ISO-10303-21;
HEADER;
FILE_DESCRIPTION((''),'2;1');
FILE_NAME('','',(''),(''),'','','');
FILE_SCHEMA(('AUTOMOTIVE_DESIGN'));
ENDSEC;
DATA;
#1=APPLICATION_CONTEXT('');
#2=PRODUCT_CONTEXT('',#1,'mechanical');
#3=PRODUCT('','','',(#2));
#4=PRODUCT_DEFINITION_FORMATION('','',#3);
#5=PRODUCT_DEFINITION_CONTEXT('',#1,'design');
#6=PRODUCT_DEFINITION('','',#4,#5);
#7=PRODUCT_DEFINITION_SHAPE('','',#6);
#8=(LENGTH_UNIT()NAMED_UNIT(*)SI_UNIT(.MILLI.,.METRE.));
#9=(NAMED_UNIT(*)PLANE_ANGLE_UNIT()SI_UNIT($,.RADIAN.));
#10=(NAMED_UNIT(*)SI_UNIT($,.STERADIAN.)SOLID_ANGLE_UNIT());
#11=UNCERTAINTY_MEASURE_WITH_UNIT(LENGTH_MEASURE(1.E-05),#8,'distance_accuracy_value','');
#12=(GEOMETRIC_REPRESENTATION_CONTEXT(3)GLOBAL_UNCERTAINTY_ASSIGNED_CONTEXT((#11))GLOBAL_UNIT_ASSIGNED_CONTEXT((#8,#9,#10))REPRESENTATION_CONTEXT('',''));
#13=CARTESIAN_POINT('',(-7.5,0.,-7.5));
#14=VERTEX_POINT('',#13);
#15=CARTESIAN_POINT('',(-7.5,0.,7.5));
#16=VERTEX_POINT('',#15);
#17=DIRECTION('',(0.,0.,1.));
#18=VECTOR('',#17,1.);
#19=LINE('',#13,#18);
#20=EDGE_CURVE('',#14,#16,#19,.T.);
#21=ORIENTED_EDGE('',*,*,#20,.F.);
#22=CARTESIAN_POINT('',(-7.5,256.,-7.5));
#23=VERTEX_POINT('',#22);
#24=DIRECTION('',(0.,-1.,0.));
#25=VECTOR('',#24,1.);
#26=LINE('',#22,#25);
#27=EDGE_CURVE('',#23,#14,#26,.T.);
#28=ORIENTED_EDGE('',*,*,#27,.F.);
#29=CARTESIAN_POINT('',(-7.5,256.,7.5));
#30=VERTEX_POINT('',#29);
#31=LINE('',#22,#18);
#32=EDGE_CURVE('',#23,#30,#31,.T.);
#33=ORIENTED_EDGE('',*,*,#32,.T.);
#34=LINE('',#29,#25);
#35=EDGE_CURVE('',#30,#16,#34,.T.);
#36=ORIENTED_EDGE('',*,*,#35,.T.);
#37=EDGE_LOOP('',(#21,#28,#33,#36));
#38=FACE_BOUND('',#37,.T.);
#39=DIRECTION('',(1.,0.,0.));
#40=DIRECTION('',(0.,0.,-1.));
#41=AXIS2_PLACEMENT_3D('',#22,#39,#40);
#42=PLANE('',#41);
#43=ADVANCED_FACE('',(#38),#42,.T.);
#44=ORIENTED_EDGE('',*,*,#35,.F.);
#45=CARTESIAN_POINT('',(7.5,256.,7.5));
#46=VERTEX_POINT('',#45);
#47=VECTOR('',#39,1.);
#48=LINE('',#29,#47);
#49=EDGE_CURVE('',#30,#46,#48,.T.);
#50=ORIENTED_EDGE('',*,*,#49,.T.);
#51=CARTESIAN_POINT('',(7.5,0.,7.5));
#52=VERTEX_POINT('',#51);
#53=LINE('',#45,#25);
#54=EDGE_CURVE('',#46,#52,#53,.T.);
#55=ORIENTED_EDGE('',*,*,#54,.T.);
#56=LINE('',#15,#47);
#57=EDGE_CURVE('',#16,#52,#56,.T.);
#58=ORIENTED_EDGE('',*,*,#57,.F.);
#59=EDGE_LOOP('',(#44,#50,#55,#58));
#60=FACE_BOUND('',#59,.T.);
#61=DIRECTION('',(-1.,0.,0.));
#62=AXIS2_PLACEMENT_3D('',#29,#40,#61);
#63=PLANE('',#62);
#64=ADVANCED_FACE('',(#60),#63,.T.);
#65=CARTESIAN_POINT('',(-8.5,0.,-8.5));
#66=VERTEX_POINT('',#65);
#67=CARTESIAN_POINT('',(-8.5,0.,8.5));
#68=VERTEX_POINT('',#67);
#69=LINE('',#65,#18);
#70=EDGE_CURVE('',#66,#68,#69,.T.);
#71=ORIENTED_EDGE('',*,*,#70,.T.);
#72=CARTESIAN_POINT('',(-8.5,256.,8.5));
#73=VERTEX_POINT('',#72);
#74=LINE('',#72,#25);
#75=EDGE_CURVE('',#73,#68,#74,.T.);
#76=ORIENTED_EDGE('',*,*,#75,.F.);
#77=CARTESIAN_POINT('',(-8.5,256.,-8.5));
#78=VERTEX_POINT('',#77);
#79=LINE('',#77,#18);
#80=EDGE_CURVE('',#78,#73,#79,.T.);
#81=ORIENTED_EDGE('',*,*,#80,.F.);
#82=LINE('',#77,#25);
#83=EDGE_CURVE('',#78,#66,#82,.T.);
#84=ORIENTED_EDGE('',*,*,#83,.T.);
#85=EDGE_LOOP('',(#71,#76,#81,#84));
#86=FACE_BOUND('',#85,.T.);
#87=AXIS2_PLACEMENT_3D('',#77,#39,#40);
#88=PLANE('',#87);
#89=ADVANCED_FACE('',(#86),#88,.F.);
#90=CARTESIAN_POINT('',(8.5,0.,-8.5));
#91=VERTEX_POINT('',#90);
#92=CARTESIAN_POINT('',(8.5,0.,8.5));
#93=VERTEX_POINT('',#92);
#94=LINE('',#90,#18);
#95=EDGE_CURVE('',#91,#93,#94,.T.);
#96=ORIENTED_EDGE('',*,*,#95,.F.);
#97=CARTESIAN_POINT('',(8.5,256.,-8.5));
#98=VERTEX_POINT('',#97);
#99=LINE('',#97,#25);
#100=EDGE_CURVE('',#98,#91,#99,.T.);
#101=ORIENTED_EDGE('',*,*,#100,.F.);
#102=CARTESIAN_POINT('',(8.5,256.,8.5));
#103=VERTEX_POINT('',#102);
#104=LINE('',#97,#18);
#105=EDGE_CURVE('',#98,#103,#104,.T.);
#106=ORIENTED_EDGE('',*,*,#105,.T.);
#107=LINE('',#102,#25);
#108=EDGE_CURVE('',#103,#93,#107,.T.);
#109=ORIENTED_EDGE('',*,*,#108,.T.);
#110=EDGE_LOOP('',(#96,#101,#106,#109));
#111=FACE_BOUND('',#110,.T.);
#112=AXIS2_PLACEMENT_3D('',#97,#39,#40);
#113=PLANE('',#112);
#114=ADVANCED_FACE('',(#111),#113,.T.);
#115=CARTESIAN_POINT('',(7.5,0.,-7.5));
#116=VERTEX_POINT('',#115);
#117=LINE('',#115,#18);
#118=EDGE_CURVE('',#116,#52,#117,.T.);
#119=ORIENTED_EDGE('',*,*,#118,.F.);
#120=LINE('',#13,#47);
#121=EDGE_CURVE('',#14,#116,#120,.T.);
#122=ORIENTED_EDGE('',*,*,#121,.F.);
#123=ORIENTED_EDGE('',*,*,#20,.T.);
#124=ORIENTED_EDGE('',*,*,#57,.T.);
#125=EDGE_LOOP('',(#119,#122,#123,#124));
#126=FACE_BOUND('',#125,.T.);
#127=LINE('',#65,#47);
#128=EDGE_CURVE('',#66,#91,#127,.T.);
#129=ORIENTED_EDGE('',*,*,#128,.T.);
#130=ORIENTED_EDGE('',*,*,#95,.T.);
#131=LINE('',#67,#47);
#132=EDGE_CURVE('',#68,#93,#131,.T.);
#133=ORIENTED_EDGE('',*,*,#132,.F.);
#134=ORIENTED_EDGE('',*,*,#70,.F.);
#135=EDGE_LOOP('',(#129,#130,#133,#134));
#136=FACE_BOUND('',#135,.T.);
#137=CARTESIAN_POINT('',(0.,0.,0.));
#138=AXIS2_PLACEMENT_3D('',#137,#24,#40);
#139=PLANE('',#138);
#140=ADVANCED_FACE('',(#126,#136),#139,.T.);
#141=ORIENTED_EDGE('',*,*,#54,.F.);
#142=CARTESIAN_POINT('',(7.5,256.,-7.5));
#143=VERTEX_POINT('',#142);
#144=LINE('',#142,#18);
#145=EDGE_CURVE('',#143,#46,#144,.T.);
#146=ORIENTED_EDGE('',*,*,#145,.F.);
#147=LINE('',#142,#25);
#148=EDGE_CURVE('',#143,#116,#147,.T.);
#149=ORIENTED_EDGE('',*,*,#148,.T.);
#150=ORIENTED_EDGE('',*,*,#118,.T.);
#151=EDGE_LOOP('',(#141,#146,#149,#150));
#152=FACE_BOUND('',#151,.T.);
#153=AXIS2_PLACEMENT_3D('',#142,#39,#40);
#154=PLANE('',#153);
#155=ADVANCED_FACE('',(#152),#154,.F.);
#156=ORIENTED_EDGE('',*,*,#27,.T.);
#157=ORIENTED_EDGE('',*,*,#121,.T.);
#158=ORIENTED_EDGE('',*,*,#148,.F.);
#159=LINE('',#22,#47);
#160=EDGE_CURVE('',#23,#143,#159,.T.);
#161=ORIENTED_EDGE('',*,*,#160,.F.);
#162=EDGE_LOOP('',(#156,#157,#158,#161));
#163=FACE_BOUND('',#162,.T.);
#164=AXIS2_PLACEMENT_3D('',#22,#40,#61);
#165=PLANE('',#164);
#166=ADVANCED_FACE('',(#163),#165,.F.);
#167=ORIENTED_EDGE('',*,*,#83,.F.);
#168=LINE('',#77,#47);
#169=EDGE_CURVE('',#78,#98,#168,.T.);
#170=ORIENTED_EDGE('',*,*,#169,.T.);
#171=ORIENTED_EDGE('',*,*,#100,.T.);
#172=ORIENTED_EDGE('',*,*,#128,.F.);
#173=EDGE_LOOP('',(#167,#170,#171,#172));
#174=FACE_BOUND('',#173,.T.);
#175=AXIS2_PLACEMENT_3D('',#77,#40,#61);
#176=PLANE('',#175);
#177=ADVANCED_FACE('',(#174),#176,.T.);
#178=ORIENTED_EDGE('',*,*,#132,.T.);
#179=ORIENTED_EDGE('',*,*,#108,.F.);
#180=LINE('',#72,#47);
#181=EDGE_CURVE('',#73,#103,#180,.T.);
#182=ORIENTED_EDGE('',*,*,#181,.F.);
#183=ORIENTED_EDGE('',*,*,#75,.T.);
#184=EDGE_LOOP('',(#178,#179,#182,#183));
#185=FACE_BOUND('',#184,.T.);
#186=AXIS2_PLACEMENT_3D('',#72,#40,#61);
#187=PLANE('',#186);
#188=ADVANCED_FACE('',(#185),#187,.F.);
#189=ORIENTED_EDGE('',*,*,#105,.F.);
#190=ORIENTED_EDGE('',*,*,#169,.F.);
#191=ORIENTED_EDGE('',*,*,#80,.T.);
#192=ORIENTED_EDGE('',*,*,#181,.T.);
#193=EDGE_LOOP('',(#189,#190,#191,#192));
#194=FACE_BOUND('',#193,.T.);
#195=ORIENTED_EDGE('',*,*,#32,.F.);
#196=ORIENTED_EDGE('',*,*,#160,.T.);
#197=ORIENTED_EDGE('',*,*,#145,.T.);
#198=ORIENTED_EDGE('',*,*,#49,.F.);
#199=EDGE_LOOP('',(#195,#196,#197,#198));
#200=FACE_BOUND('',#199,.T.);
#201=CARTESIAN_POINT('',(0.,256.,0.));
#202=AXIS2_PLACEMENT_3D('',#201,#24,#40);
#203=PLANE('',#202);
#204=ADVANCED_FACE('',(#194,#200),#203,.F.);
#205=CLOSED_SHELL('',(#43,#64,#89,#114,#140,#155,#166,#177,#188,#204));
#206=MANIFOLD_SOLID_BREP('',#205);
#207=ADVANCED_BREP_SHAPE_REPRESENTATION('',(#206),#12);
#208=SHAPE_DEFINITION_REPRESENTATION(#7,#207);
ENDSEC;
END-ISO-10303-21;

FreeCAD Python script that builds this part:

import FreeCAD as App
import Part
import Sketcher
from FreeCAD import Vector

doc = App.newDocument("Part")
body = doc.addObject("PartDesign::Body", "Body")

# Sketch on XZ plane
sketch1 = body.newObject("Sketcher::SketchObject", "Sketch")
sketch1.AttachmentSupport = (doc.getObject("XZ_Plane"), [""])
sketch1.MapMode = "FlatFace"
sketch1.addGeometry(Part.LineSegment(Vector(-8, -8, 0), Vector(-8, 8, 0)), False)
sketch1.addGeometry(Part.LineSegment(Vector(-8, 8, 0), Vector(8, 8, 0)), False)
sketch1.addGeometry(Part.LineSegment(Vector(8, 8, 0), Vector(8, -8, 0)), False)
sketch1.addGeometry(Part.LineSegment(Vector(8, -8, 0), Vector(-8, -8, 0)), False)
sketch1.addGeometry(Part.LineSegment(Vector(8, 8, 0), Vector(-8, 8, 0)), False)
sketch1.addGeometry(Part.LineSegment(Vector(-8, 8, 0), Vector(-8, -8, 0)), False)
sketch1.addGeometry(Part.LineSegment(Vector(-8, -8, 0), Vector(8, -8, 0)), False)
sketch1.addGeometry(Part.LineSegment(Vector(8, -8, 0), Vector(8, 8, 0)), False)
sketch1.addConstraint(Sketcher.Constraint("Coincident", 0, 2, 1, 1))
sketch1.addConstraint(Sketcher.Constraint("Coincident", 1, 2, 2, 1))
sketch1.addConstraint(Sketcher.Constraint("Coincident", 2, 2, 3, 1))
sketch1.addConstraint(Sketcher.Constraint("Coincident", 3, 2, 0, 1))
sketch1.addConstraint(Sketcher.Constraint("Coincident", 4, 2, 5, 1))
sketch1.addConstraint(Sketcher.Constraint("Coincident", 5, 2, 6, 1))
sketch1.addConstraint(Sketcher.Constraint("Coincident", 6, 2, 7, 1))
sketch1.addConstraint(Sketcher.Constraint("Coincident", 7, 2, 4, 1))
sketch1.addConstraint(Sketcher.Constraint("Vertical", 0))
sketch1.addConstraint(Sketcher.Constraint("Horizontal", 1))
sketch1.addConstraint(Sketcher.Constraint("Vertical", 2))
sketch1.addConstraint(Sketcher.Constraint("Horizontal", 3))
sketch1.addConstraint(Sketcher.Constraint("Horizontal", 4))
sketch1.addConstraint(Sketcher.Constraint("Vertical", 5))
sketch1.addConstraint(Sketcher.Constraint("Horizontal", 6))
sketch1.addConstraint(Sketcher.Constraint("Vertical", 7))
sketch1.addConstraint(Sketcher.Constraint("Symmetric", 0, 2, 2, 2, -1, 1))
sketch1.addConstraint(Sketcher.Constraint("Symmetric", 4, 2, 6, 2, -1, 1))
sketch1.addConstraint(Sketcher.Constraint("Equal", 3, 0))
sketch1.addConstraint(Sketcher.Constraint("Equal", 6, 5))
sketch1.addConstraint(Sketcher.Constraint("DistanceX", 1, 1, 1, 2, 17.0))
sketch1.addConstraint(Sketcher.Constraint("DistanceX", 4, 2, 4, 1, 15.0))
pad1 = body.newObject("PartDesign::Pad", "Pad")
pad1.Profile = sketch1
pad1.Length = 256
pad1.Reversed = True

doc.recompute()
